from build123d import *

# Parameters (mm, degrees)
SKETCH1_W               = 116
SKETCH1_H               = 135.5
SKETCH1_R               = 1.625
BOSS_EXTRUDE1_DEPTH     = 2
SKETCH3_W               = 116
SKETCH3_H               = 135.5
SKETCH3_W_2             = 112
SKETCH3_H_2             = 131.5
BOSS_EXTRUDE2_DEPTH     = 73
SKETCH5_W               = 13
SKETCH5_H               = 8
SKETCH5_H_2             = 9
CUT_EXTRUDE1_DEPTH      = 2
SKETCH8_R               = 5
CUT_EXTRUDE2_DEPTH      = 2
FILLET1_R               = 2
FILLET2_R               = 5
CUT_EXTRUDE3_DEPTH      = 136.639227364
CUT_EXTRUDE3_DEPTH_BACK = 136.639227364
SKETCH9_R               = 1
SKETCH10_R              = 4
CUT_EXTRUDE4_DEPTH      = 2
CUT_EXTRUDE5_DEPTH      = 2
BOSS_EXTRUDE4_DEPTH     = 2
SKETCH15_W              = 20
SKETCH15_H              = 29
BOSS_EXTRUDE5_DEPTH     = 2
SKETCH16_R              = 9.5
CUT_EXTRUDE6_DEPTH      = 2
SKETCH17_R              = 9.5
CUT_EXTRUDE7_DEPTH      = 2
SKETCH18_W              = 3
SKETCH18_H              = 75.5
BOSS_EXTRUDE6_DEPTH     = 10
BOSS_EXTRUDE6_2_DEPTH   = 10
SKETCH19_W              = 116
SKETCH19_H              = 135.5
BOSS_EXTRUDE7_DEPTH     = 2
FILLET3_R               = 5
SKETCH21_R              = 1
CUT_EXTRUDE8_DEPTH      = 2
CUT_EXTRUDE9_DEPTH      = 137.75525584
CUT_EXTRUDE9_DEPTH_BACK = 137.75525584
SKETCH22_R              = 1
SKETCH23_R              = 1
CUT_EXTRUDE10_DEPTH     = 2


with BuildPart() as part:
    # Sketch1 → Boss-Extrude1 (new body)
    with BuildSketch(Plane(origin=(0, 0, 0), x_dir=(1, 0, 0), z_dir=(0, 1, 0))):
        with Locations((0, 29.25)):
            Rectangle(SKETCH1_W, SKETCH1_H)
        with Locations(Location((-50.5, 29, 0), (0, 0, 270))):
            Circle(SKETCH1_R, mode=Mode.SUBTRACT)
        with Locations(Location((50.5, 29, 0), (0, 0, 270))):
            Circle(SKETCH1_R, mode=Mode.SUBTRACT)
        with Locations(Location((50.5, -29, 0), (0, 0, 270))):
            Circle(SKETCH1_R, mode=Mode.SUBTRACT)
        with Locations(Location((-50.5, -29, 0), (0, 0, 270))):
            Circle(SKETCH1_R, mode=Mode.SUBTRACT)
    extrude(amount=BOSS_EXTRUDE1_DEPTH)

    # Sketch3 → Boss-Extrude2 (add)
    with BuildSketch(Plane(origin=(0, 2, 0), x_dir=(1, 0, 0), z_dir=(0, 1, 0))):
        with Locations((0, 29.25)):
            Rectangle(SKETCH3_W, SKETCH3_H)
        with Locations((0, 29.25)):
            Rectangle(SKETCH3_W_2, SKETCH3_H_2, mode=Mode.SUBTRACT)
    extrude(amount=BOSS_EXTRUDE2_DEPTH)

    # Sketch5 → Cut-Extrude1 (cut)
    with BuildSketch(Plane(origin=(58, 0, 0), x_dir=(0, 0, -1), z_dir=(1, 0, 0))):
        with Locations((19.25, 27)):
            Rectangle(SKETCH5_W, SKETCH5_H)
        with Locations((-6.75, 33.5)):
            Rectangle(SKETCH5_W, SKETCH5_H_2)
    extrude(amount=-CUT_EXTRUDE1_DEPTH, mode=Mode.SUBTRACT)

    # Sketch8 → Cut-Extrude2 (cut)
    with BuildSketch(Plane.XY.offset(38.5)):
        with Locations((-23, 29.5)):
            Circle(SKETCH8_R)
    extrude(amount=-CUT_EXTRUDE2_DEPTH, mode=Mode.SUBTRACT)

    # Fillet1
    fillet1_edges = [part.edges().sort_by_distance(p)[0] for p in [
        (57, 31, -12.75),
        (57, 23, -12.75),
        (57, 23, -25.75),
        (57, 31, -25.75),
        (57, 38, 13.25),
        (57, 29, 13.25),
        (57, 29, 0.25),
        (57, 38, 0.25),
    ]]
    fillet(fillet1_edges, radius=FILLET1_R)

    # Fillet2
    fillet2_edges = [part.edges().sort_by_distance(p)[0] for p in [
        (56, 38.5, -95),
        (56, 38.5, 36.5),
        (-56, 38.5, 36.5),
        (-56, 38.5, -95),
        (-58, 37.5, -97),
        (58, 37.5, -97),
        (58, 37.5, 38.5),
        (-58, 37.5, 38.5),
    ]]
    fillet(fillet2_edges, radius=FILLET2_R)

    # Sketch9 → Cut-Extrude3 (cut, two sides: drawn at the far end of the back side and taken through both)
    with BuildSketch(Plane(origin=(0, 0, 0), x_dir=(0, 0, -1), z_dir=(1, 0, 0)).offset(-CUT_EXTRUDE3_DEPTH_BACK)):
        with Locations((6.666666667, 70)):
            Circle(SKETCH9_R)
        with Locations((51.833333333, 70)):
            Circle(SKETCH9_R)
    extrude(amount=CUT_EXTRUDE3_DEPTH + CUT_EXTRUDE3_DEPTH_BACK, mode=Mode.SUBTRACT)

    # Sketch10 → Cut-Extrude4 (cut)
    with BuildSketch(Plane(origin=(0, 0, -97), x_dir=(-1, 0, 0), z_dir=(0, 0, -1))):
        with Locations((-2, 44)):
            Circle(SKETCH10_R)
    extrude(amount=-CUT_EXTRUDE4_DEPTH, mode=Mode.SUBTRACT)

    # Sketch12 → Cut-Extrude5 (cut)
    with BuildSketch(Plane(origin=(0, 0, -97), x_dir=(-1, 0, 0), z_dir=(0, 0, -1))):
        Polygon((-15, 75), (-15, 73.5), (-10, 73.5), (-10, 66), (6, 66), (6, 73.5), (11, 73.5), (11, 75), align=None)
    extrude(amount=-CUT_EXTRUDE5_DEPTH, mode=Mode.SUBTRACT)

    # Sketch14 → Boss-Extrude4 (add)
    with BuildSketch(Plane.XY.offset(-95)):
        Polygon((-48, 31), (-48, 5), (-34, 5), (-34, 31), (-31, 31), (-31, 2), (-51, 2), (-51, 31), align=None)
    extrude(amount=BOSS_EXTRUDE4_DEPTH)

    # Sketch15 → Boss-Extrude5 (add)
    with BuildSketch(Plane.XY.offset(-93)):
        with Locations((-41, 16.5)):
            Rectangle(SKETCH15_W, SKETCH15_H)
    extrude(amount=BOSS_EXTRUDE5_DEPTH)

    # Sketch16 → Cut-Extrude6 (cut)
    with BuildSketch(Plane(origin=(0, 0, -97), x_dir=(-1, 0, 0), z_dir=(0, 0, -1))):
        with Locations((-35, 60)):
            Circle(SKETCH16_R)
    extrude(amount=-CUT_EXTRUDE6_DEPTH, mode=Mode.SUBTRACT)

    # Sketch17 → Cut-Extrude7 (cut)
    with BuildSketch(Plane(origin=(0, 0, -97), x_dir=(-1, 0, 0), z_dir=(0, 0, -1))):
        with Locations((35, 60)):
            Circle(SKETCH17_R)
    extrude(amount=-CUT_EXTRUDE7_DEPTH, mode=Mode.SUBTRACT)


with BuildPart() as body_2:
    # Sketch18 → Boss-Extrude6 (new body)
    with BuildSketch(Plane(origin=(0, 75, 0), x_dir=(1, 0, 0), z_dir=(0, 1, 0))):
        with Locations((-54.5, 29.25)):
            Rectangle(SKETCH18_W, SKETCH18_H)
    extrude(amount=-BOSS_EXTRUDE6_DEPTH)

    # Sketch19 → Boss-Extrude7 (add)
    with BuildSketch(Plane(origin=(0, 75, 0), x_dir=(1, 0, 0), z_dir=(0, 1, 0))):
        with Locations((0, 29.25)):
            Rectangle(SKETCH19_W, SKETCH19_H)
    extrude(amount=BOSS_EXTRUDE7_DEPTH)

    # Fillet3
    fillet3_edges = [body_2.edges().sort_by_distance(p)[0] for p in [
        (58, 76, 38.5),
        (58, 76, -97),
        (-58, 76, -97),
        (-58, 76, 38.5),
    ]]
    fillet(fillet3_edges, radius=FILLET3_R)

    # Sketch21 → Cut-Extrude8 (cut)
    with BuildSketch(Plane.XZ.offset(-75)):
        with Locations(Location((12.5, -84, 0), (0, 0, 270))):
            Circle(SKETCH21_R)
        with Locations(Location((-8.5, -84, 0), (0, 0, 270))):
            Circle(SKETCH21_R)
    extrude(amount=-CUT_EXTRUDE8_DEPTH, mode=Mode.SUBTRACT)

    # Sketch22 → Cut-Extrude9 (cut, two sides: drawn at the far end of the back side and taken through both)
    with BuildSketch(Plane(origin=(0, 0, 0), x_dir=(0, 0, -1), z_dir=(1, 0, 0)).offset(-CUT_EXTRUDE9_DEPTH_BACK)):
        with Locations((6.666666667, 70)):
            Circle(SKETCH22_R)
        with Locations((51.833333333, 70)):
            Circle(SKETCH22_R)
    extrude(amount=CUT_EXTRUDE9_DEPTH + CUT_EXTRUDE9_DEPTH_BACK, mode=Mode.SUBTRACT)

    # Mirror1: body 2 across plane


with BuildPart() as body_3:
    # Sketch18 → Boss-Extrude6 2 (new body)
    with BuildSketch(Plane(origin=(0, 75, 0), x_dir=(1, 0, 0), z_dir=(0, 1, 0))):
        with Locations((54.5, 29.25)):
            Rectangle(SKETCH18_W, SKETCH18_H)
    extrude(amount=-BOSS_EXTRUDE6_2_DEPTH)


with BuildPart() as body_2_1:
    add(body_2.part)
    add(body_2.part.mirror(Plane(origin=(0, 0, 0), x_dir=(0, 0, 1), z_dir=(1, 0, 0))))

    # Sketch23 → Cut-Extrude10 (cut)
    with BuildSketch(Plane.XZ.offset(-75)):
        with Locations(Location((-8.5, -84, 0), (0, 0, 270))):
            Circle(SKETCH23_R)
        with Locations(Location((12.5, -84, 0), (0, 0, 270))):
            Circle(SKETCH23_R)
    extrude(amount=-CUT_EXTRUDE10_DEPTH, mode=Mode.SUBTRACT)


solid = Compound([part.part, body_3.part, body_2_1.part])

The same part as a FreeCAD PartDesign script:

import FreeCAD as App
import Part
import Sketcher

V = App.Vector


def edges_at(feature, points):
    """Names of the edges that pass closest to the given points."""
    edges = feature.Shape.Edges
    near = lambda p: min(range(len(edges)), key=lambda i: edges[i].distToShape(Part.Vertex(*p))[0])
    return sorted({f"Edge{near(p) + 1}" for p in points})


def add_polygon(sketch, points):
    """Adds a closed chain of lines whose ends are joined by coincident constraints."""
    first, n = sketch.GeometryCount, len(points)
    for a, b in zip(points, points[1:] + points[:1]):
        sketch.addGeometry(Part.LineSegment(App.Vector(*a, 0), App.Vector(*b, 0)), False)
    for i in range(n):
        sketch.addConstraint(Sketcher.Constraint("Coincident", first + i, 2, first + (i + 1) % n, 1))

doc = App.newDocument("Part")
body = doc.addObject("PartDesign::Body", "Body")

sketch1 = body.newObject("Sketcher::SketchObject", "Sketch")
sketch1.AttachmentSupport = (doc.getObject("XZ_Plane"), [""])
sketch1.MapMode = "FlatFace"
add_polygon(sketch1, [(-58, -97), (-58, 38.5), (58, 38.5), (58, -97)])
sketch1.addGeometry(Part.Circle(V(-50.5, 29, 0), V(0, 0, 1), 1.625), False)
sketch1.addGeometry(Part.Circle(V(50.5, 29, 0), V(0, 0, 1), 1.625), False)
sketch1.addGeometry(Part.Circle(V(-50.5, -29, 0), V(0, 0, 1), 1.625), False)
sketch1.addGeometry(Part.Circle(V(50.5, -29, 0), V(0, 0, 1), 1.625), False)
sketch1.addConstraint([
    Sketcher.Constraint("Vertical", 0),
    Sketcher.Constraint("Horizontal", 1),
    Sketcher.Constraint("Vertical", 2),
    Sketcher.Constraint("Horizontal", 3),
    Sketcher.Constraint("Equal", 4, 5),
    Sketcher.Constraint("Equal", 5, 6),
    Sketcher.Constraint("Equal", 6, 7),
    Sketcher.Constraint("Symmetric", 5, 3, 6, 3, -1, 1),
    Sketcher.Constraint("Symmetric", 4, 3, 7, 3, -1, 1),
    Sketcher.Constraint("Symmetric", 4, 3, 5, 3, -2),
    Sketcher.Constraint("Diameter", 4, 3.25),
    Sketcher.Constraint("DistanceX", 1, 1, 1, 2, 116.0),
    Sketcher.Constraint("DistanceY", 0, 1, 0, 2, 135.5),
    Sketcher.Constraint("DistanceY", -1, 1, 4, 3, 29.0),
    Sketcher.Constraint("DistanceX", 0, 2, -1, 1, 58.0),
    Sketcher.Constraint("DistanceY", 2, 2, -1, 1, 97.0),
    Sketcher.Constraint("DistanceX", 4, 3, 5, 3, 101.0),
])
pad1 = body.newObject("PartDesign::Pad", "Pad")
pad1.Profile = sketch1
pad1.Length = 2
pad1.Reversed = True

sketch2 = body.newObject("Sketcher::SketchObject", "Sketch001")
sketch2.AttachmentSupport = (doc.getObject("XZ_Plane"), [""])
sketch2.MapMode = "FlatFace"
sketch2.AttachmentOffset = App.Placement(V(0, 0, -2), App.Rotation())
add_polygon(sketch2, [(-58, -97), (-58, 38.5), (58, 38.5), (58, -97)])
add_polygon(sketch2, [(56, 36.5), (-56, 36.5), (-56, -95), (56, -95)])
sketch2.addConstraint([
    Sketcher.Constraint("Vertical", 0),
    Sketcher.Constraint("Horizontal", 1),
    Sketcher.Constraint("Vertical", 2),
    Sketcher.Constraint("Horizontal", 3),
    Sketcher.Constraint("Horizontal", 4),
    Sketcher.Constraint("Vertical", 5),
    Sketcher.Constraint("Horizontal", 6),
    Sketcher.Constraint("Vertical", 7),
    Sketcher.Constraint("DistanceX", 1, 1, 1, 2, 116.0),
    Sketcher.Constraint("DistanceX", 4, 2, 4, 1, 112.0),
    Sketcher.Constraint("DistanceY", 0, 1, 0, 2, 135.5),
    Sketcher.Constraint("DistanceY", 5, 2, 5, 1, 131.5),
    Sketcher.Constraint("DistanceX", 0, 2, -1, 1, 58.0),
    Sketcher.Constraint("DistanceY", 2, 2, -1, 1, 97.0),
    Sketcher.Constraint("DistanceX", 4, 2, -1, 1, 56.0),
    Sketcher.Constraint("DistanceY", 5, 2, -1, 1, 95.0),
])
pad2 = body.newObject("PartDesign::Pad", "Pad001")
pad2.Profile = sketch2
pad2.Length = 73
pad2.Reversed = True

sketch3 = body.newObject("Sketcher::SketchObject", "Sketch002")
sketch3.AttachmentSupport = (doc.getObject("YZ_Plane"), [""])
sketch3.MapMode = "FlatFace"
sketch3.AttachmentOffset = App.Placement(V(0, 0, 58), App.Rotation())
add_polygon(sketch3, [(31, -12.75), (23, -12.75), (23, -25.75), (31, -25.75)])
add_polygon(sketch3, [(38, 13.25), (29, 13.25), (29, 0.25), (38, 0.25)])
sketch3.addConstraint([
    Sketcher.Constraint("Horizontal", 0),
    Sketcher.Constraint("Vertical", 1),
    Sketcher.Constraint("Horizontal", 2),
    Sketcher.Constraint("Vertical", 3),
    Sketcher.Constraint("Horizontal", 4),
    Sketcher.Constraint("Vertical", 5),
    Sketcher.Constraint("Horizontal", 6),
    Sketcher.Constraint("Vertical", 7),
    Sketcher.Constraint("Equal", 3, 5),
    Sketcher.Constraint("DistanceX", 0, 2, 0, 1, 8.0),
    Sketcher.Constraint("DistanceX", 4, 2, 4, 1, 9.0),
    Sketcher.Constraint("DistanceY", 1, 2, 1, 1, 13.0),
    Sketcher.Constraint("DistanceX", -1, 1, 0, 2, 23.0),
    Sketcher.Constraint("DistanceX", -1, 1, 4, 2, 29.0),
    Sketcher.Constraint("DistanceY", 3, 2, 4, 2, 26.0),
    Sketcher.Constraint("DistanceY", 0, 2, -1, 1, 12.75),
])
pocket1 = body.newObject("PartDesign::Pocket", "Pocket")
pocket1.Profile = sketch3
pocket1.Length = 2

sketch4 = body.newObject("Sketcher::SketchObject", "Sketch003")
sketch4.AttachmentSupport = (doc.getObject("XY_Plane"), [""])
sketch4.MapMode = "FlatFace"
sketch4.AttachmentOffset = App.Placement(V(0, 0, 38.5), App.Rotation())
sketch4.addGeometry(Part.Circle(V(-23, 29.5, 0), V(0, 0, 1), 5), False)
sketch4.addConstraint([
    Sketcher.Constraint("Diameter", 0, 10.0),
    Sketcher.Constraint("DistanceX", 0, 3, -1, 1, 23.0),
    Sketcher.Constraint("DistanceY", -1, 1, 0, 3, 29.5),
])
pocket2 = body.newObject("PartDesign::Pocket", "Pocket001")
pocket2.Profile = sketch4
pocket2.Length = 2
doc.recompute()

fillet = body.newObject("PartDesign::Fillet", "Fillet")
fillet.Base = (pocket2, edges_at(pocket2, [
    (57, 31, -12.75),
    (57, 23, -12.75),
    (57, 23, -25.75),
    (57, 31, -25.75),
    (57, 38, 13.25),
    (57, 29, 13.25),
    (57, 29, 0.25),
    (57, 38, 0.25),
]))
fillet.Radius = 2
doc.recompute()

fillet2 = body.newObject("PartDesign::Fillet", "Fillet001")
fillet2.Base = (fillet, edges_at(fillet, [
    (56, 38.5, -95),
    (56, 38.5, 36.5),
    (-56, 38.5, 36.5),
    (-56, 38.5, -95),
    (-58, 37.5, -97),
    (58, 37.5, -97),
    (58, 37.5, 38.5),
    (-58, 37.5, 38.5),
]))
fillet2.Radius = 5

sketch5 = body.newObject("Sketcher::SketchObject", "Sketch004")
sketch5.AttachmentSupport = (doc.getObject("YZ_Plane"), [""])
sketch5.MapMode = "FlatFace"
sketch5.addGeometry([
    Part.Circle(V(70, -6.666667, 0), V(0, 0, 1), 1),
    Part.Circle(V(70, -51.833333, 0), V(0, 0, 1), 1),
], False)
sketch5.addConstraint([
    Sketcher.Constraint("Equal", 0, 1),
    Sketcher.Constraint("Vertical", 0, 3, 1, 3),
    Sketcher.Constraint("Diameter", 0, 2.0),
    Sketcher.Constraint("DistanceX", -1, 1, 0, 3, 70.0),
    Sketcher.Constraint("DistanceY", 0, 3, -1, 1, 6.666667),
    Sketcher.Constraint("DistanceY", 1, 3, -1, 1, 51.833333),
])
pocket3 = body.newObject("PartDesign::Pocket", "Pocket002")
pocket3.Profile = sketch5
pocket3.Type = "ThroughAll"
pocket3.Midplane = True

sketch6 = body.newObject("Sketcher::SketchObject", "Sketch005")
sketch6.AttachmentSupport = (doc.getObject("XY_Plane"), [""])
sketch6.MapMode = "FlatFace"
sketch6.AttachmentOffset = App.Placement(V(0, 0, -97), App.Rotation())
sketch6.addGeometry(Part.Circle(V(2, 44, 0), V(0, 0, 1), 4), False)
sketch6.addConstraint([
    Sketcher.Constraint("Diameter", 0, 8.0),
    Sketcher.Constraint("DistanceX", -1, 1, 0, 3, 2.0),
    Sketcher.Constraint("DistanceY", -1, 1, 0, 3, 44.0),
])
pocket4 = body.newObject("PartDesign::Pocket", "Pocket003")
pocket4.Profile = sketch6
pocket4.Length = 2
pocket4.Reversed = True

sketch7 = body.newObject("Sketcher::SketchObject", "Sketch006")
sketch7.AttachmentSupport = (doc.getObject("XY_Plane"), [""])
sketch7.MapMode = "FlatFace"
sketch7.AttachmentOffset = App.Placement(V(0, 0, -97), App.Rotation())
add_polygon(sketch7, [(15, 75), (15, 73.5), (10, 73.5), (10, 66), (-6, 66), (-6, 73.5), (-11, 73.5), (-11, 75)])
sketch7.addConstraint([
    Sketcher.Constraint("Vertical", 0),
    Sketcher.Constraint("Horizontal", 1),
    Sketcher.Constraint("Vertical", 2),
    Sketcher.Constraint("Horizontal", 3),
    Sketcher.Constraint("Vertical", 4),
    Sketcher.Constraint("Horizontal", 5),
    Sketcher.Constraint("Vertical", 6),
    Sketcher.Constraint("Horizontal", 7),
    Sketcher.Constraint("Horizontal", 1, 2, 4, 2),
    Sketcher.Constraint("Equal", 1, 5),
    Sketcher.Constraint("DistanceX", 1, 2, 1, 1, 5.0),
    Sketcher.Constraint("DistanceX", 3, 2, 3, 1, 16.0),
    Sketcher.Constraint("DistanceY", 0, 2, 0, 1, 1.5),
    Sketcher.Constraint("DistanceY", 2, 2, 2, 1, 7.5),
    Sketcher.Constraint("DistanceX", -1, 1, 0, 2, 15.0),
    Sketcher.Constraint("DistanceY", -1, 1, 2, 2, 66.0),
])
pocket5 = body.newObject("PartDesign::Pocket", "Pocket004")
pocket5.Profile = sketch7
pocket5.Length = 2
pocket5.Reversed = True

sketch8 = body.newObject("Sketcher::SketchObject", "Sketch007")
sketch8.AttachmentSupport = (doc.getObject("XY_Plane"), [""])
sketch8.MapMode = "FlatFace"
sketch8.AttachmentOffset = App.Placement(V(0, 0, -95), App.Rotation())
add_polygon(sketch8, [(-48, 5), (-48, 31), (-51, 31), (-51, 2), (-31, 2), (-31, 31), (-34, 31), (-34, 5)])
sketch8.addConstraint([
    Sketcher.Constraint("Vertical", 0),
    Sketcher.Constraint("Horizontal", 1),
    Sketcher.Constraint("Vertical", 2),
    Sketcher.Constraint("Horizontal", 3),
    Sketcher.Constraint("Vertical", 4),
    Sketcher.Constraint("Horizontal", 5),
    Sketcher.Constraint("Vertical", 6),
    Sketcher.Constraint("Horizontal", 7),
    Sketcher.Constraint("Horizontal", 1, 2, 4, 2),
    Sketcher.Constraint("Equal", 1, 5),
    Sketcher.Constraint("DistanceX", 1, 2, 1, 1, 3.0),
    Sketcher.Constraint("DistanceX", 3, 1, 3, 2, 20.0),
    Sketcher.Constraint("DistanceY", 0, 1, 0, 2, 26.0),
    Sketcher.Constraint("DistanceY", 2, 2, 2, 1, 29.0),
    Sketcher.Constraint("DistanceX", 0, 2, -1, 1, 48.0),
    Sketcher.Constraint("DistanceY", -1, 1, 0, 2, 31.0),
])
pad3 = body.newObject("PartDesign::Pad", "Pad002")
pad3.Profile = sketch8
pad3.Length = 2

sketch9 = body.newObject("Sketcher::SketchObject", "Sketch008")
sketch9.AttachmentSupport = (doc.getObject("XY_Plane"), [""])
sketch9.MapMode = "FlatFace"
sketch9.AttachmentOffset = App.Placement(V(0, 0, -93), App.Rotation())
add_polygon(sketch9, [(-51, 31), (-51, 2), (-31, 2), (-31, 31)])
sketch9.addConstraint([
    Sketcher.Constraint("Vertical", 0),
    Sketcher.Constraint("Horizontal", 1),
    Sketcher.Constraint("Vertical", 2),
    Sketcher.Constraint("Horizontal", 3),
    Sketcher.Constraint("DistanceX", 1, 1, 1, 2, 20.0),
    Sketcher.Constraint("DistanceY", 0, 2, 0, 1, 29.0),
    Sketcher.Constraint("DistanceX", 0, 2, -1, 1, 51.0),
    Sketcher.Constraint("DistanceY", -1, 1, 0, 2, 2.0),
])
pad4 = body.newObject("PartDesign::Pad", "Pad003")
pad4.Profile = sketch9
pad4.Length = 2

sketch10 = body.newObject("Sketcher::SketchObject", "Sketch009")
sketch10.AttachmentSupport = (doc.getObject("XY_Plane"), [""])
sketch10.MapMode = "FlatFace"
sketch10.AttachmentOffset = App.Placement(V(0, 0, -97), App.Rotation())
sketch10.addGeometry(Part.Circle(V(35, 60, 0), V(0, 0, 1), 9.5), False)
sketch10.addConstraint([
    Sketcher.Constraint("Diameter", 0, 19.0),
    Sketcher.Constraint("DistanceX", -1, 1, 0, 3, 35.0),
    Sketcher.Constraint("DistanceY", -1, 1, 0, 3, 60.0),
])
pocket6 = body.newObject("PartDesign::Pocket", "Pocket005")
pocket6.Profile = sketch10
pocket6.Length = 2
pocket6.Reversed = True

sketch11 = body.newObject("Sketcher::SketchObject", "Sketch010")
sketch11.AttachmentSupport = (doc.getObject("XY_Plane"), [""])
sketch11.MapMode = "FlatFace"
sketch11.AttachmentOffset = App.Placement(V(0, 0, -97), App.Rotation())
sketch11.addGeometry(Part.Circle(V(-35, 60, 0), V(0, 0, 1), 9.5), False)
sketch11.addConstraint([
    Sketcher.Constraint("Diameter", 0, 19.0),
    Sketcher.Constraint("DistanceX", 0, 3, -1, 1, 35.0),
    Sketcher.Constraint("DistanceY", -1, 1, 0, 3, 60.0),
])
pocket7 = body.newObject("PartDesign::Pocket", "Pocket006")
pocket7.Profile = sketch11
pocket7.Length = 2
pocket7.Reversed = True
body2 = doc.addObject("PartDesign::Body", "Body001")

sketch12 = body2.newObject("Sketcher::SketchObject", "Sketch011")
sketch12.AttachmentSupport = (doc.getObject("XZ_Plane001"), [""])
sketch12.MapMode = "FlatFace"
sketch12.AttachmentOffset = App.Placement(V(0, 0, -75), App.Rotation())
add_polygon(sketch12, [(-56, -67), (-56, 8.5), (-53, 8.5), (-53, -67)])
sketch12.addConstraint([
    Sketcher.Constraint("Vertical", 0),
    Sketcher.Constraint("Horizontal", 1),
    Sketcher.Constraint("Vertical", 2),
    Sketcher.Constraint("Horizontal", 3),
    Sketcher.Constraint("DistanceX", 1, 1, 1, 2, 3.0),
    Sketcher.Constraint("DistanceY", 0, 1, 0, 2, 75.5),
    Sketcher.Constraint("DistanceX", 0, 2, -1, 1, 56.0),
    Sketcher.Constraint("DistanceY", 2, 2, -1, 1, 67.0),
])
pad5 = body2.newObject("PartDesign::Pad", "Pad004")
pad5.Profile = sketch12
pad5.Length = 10

sketch13 = body2.newObject("Sketcher::SketchObject", "Sketch012")
sketch13.AttachmentSupport = (doc.getObject("XZ_Plane001"), [""])
sketch13.MapMode = "FlatFace"
sketch13.AttachmentOffset = App.Placement(V(0, 0, -75), App.Rotation())
add_polygon(sketch13, [(-58, -97), (-58, 38.5), (58, 38.5), (58, -97)])
sketch13.addConstraint([
    Sketcher.Constraint("Vertical", 0),
    Sketcher.Constraint("Horizontal", 1),
    Sketcher.Constraint("Vertical", 2),
    Sketcher.Constraint("Horizontal", 3),
    Sketcher.Constraint("DistanceX", 1, 1, 1, 2, 116.0),
    Sketcher.Constraint("DistanceY", 0, 1, 0, 2, 135.5),
    Sketcher.Constraint("DistanceX", 0, 2, -1, 1, 58.0),
    Sketcher.Constraint("DistanceY", 2, 2, -1, 1, 97.0),
])
pad6 = body2.newObject("PartDesign::Pad", "Pad005")
pad6.Profile = sketch13
pad6.Length = 2
pad6.Reversed = True
doc.recompute()

fillet3 = body2.newObject("PartDesign::Fillet", "Fillet002")
fillet3.Base = (pad6, edges_at(pad6, [
    (58, 76, 38.5),
    (58, 76, -97),
    (-58, 76, -97),
    (-58, 76, 38.5),
]))
fillet3.Radius = 5

sketch14 = body2.newObject("Sketcher::SketchObject", "Sketch013")
sketch14.AttachmentSupport = (doc.getObject("XZ_Plane001"), [""])
sketch14.MapMode = "FlatFace"
sketch14.AttachmentOffset = App.Placement(V(0, 0, -75), App.Rotation())
sketch14.addGeometry([
    Part.Circle(V(12.5, -84, 0), V(0, 0, 1), 1),
    Part.Circle(V(-8.5, -84, 0), V(0, 0, 1), 1),
], False)
sketch14.addConstraint([
    Sketcher.Constraint("Equal", 0, 1),
    Sketcher.Constraint("Horizontal", 0, 3, 1, 3),
    Sketcher.Constraint("Diameter", 0, 2.0),
    Sketcher.Constraint("DistanceY", 0, 3, -1, 1, 84.0),
    Sketcher.Constraint("DistanceX", 1, 3, 0, 3, 21.0),
    Sketcher.Constraint("DistanceX", -1, 1, 0, 3, 12.5),
])
pocket8 = body2.newObject("PartDesign::Pocket", "Pocket007")
pocket8.Profile = sketch14
pocket8.Length = 2

sketch15 = body2.newObject("Sketcher::SketchObject", "Sketch014")
sketch15.AttachmentSupport = (doc.getObject("YZ_Plane001"), [""])
sketch15.MapMode = "FlatFace"
sketch15.addGeometry([
    Part.Circle(V(70, -6.666667, 0), V(0, 0, 1), 1),
    Part.Circle(V(70, -51.833333, 0), V(0, 0, 1), 1),
], False)
sketch15.addConstraint([
    Sketcher.Constraint("Equal", 0, 1),
    Sketcher.Constraint("Vertical", 0, 3, 1, 3),
    Sketcher.Constraint("Diameter", 0, 2.0),
    Sketcher.Constraint("DistanceX", -1, 1, 0, 3, 70.0),
    Sketcher.Constraint("DistanceY", 0, 3, -1, 1, 6.666667),
    Sketcher.Constraint("DistanceY", 1, 3, -1, 1, 51.833333),
])
pocket9 = body2.newObject("PartDesign::Pocket", "Pocket008")
pocket9.Profile = sketch15
pocket9.Type = "ThroughAll"
pocket9.Midplane = True
body3 = doc.addObject("PartDesign::Body", "Body002")

sketch16 = body3.newObject("Sketcher::SketchObject", "Sketch015")
sketch16.AttachmentSupport = (doc.getObject("XZ_Plane002"), [""])
sketch16.MapMode = "FlatFace"
sketch16.AttachmentOffset = App.Placement(V(0, 0, -75), App.Rotation())
add_polygon(sketch16, [(53, -67), (53, 8.5), (56, 8.5), (56, -67)])
sketch16.addConstraint([
    Sketcher.Constraint("Vertical", 0),
    Sketcher.Constraint("Horizontal", 1),
    Sketcher.Constraint("Vertical", 2),
    Sketcher.Constraint("Horizontal", 3),
    Sketcher.Constraint("DistanceX", 1, 1, 1, 2, 3.0),
    Sketcher.Constraint("DistanceY", 0, 1, 0, 2, 75.5),
    Sketcher.Constraint("DistanceX", -1, 1, 0, 2, 53.0),
    Sketcher.Constraint("DistanceY", 2, 2, -1, 1, 67.0),
])
pad7 = body3.newObject("PartDesign::Pad", "Pad006")
pad7.Profile = sketch16
pad7.Length = 10
body4 = doc.addObject("PartDesign::Body", "Body003")
doc.recompute()

body4.BaseFeature = body2
doc.recompute()

mirroring = doc.addObject("Part::Mirroring", "Mirroring")
mirroring.Source = body2
mirroring.Base = V(0, 0, 0)
mirroring.Normal = V(1, 0, 0)
body5 = doc.addObject("PartDesign::Body", "Body004")
body5.BaseFeature = mirroring
boolean = body4.newObject("PartDesign::Boolean", "Boolean")
boolean.Type = "Fuse"
boolean.addObjects([body5])
doc.recompute()

sketch17 = body4.newObject("Sketcher::SketchObject", "Sketch016")
sketch17.AttachmentSupport = (doc.getObject("XZ_Plane003"), [""])
sketch17.MapMode = "FlatFace"
sketch17.AttachmentOffset = App.Placement(V(0, 0, -75), App.Rotation())
sketch17.addGeometry([
    Part.Circle(V(-8.5, -84, 0), V(0, 0, 1), 1),
    Part.Circle(V(12.5, -84, 0), V(0, 0, 1), 1),
], False)
sketch17.addConstraint([
    Sketcher.Constraint("Equal", 0, 1),
    Sketcher.Constraint("Horizontal", 0, 3, 1, 3),
    Sketcher.Constraint("Diameter", 0, 2.0),
    Sketcher.Constraint("DistanceY", 0, 3, -1, 1, 84.0),
    Sketcher.Constraint("DistanceX", 0, 3, 1, 3, 21.0),
    Sketcher.Constraint("DistanceX", 0, 3, -1, 1, 8.5),
])
pocket10 = body4.newObject("PartDesign::Pocket", "Pocket009")
pocket10.Profile = sketch17
pocket10.Length = 2
mirroring.Visibility = False

doc.recompute()
